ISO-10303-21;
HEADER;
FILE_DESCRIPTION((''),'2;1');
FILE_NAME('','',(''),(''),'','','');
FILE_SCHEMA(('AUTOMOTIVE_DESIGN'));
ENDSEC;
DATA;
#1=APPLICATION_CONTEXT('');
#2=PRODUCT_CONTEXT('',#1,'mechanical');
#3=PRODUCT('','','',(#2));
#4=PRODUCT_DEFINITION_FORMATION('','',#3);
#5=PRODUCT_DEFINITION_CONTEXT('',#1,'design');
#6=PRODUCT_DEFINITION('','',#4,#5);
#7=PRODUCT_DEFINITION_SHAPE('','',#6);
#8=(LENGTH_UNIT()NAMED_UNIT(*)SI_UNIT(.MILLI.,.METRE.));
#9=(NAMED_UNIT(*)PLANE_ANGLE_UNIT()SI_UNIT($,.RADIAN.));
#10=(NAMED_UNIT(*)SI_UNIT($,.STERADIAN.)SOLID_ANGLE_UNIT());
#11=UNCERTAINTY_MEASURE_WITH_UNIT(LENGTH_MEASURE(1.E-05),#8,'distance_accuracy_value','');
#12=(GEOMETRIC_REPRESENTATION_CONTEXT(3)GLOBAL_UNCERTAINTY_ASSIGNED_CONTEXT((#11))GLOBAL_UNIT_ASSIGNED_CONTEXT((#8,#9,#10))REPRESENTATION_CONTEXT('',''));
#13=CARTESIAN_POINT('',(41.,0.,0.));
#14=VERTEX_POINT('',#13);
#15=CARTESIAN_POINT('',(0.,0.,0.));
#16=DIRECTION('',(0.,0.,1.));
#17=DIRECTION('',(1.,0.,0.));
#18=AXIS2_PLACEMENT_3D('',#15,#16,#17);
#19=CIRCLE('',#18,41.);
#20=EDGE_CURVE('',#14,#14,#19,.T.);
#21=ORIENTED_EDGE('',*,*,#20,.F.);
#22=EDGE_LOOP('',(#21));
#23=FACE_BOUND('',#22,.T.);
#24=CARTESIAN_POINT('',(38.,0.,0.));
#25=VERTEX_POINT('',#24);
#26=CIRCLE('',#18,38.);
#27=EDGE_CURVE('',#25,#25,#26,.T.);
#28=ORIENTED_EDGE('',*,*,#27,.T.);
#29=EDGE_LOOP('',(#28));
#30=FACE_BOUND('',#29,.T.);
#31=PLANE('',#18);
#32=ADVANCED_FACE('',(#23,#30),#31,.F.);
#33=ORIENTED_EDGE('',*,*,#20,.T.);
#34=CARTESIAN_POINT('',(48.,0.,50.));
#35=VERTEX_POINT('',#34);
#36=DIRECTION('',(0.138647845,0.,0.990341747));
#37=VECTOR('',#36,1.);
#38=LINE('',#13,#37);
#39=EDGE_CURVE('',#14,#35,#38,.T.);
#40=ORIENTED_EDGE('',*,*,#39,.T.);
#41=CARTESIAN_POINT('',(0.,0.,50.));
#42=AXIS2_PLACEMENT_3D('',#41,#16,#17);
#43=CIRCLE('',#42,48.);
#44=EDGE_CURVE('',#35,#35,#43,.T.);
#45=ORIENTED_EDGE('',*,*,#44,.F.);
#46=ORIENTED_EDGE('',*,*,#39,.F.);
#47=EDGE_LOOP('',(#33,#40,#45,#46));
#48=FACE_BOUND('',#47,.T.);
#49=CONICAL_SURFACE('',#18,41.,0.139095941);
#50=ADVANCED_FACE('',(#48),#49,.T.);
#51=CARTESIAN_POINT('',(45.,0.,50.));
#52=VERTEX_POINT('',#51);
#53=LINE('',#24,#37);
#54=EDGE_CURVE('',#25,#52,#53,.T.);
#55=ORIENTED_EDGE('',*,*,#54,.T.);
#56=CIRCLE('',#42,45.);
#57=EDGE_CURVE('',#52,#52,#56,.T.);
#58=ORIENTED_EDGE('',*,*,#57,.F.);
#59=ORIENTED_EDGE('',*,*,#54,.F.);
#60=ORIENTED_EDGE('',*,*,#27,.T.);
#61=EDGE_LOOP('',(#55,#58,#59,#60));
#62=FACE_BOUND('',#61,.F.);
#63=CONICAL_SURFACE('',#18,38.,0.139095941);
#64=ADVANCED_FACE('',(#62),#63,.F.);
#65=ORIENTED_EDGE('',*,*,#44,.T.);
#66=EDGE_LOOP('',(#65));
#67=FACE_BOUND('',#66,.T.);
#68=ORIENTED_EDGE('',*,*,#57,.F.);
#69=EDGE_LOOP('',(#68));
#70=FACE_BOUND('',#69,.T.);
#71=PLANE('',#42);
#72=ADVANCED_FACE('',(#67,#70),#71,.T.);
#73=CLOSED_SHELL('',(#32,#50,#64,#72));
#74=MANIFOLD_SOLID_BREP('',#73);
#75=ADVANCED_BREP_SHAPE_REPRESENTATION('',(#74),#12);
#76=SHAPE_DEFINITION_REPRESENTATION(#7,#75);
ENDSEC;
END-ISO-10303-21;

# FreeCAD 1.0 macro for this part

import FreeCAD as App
import Part
import Sketcher

V = App.Vector

doc = App.newDocument("Part")
body = doc.addObject("PartDesign::Body", "Body")

# Sketch on XZ plane
sketch1 = body.newObject("Sketcher::SketchObject", "Sketch")
sketch1.AttachmentSupport = (doc.getObject("XZ_Plane"), [""])
sketch1.MapMode = "FlatFace"
sketch1.addGeometry([
    Part.LineSegment(V(0, 0, 0), V(38, 0, 0)),
    Part.LineSegment(V(38, 0, 0), V(45, 50, 0)),
    Part.LineSegment(V(45, 50, 0), V(0, 50, 0)),
    Part.LineSegment(V(0, 50, 0), V(0, 0, 0)),
], False)
sketch1.addConstraint([
    Sketcher.Constraint("Coincident", 0, 2, 1, 1),
    Sketcher.Constraint("Coincident", 1, 2, 2, 1),
    Sketcher.Constraint("Coincident", 2, 2, 3, 1),
    Sketcher.Constraint("Coincident", 3, 2, 0, 1),
    Sketcher.Constraint("Horizontal", 0),
    Sketcher.Constraint("Horizontal", 2),
    Sketcher.Constraint("Vertical", 3),
    Sketcher.Constraint("Coincident", 3, 2, -1, 1),
    Sketcher.Constraint("DistanceX", 0, 1, 0, 2, 38.0),
    Sketcher.Constraint("DistanceX", 2, 2, 2, 1, 45.0),
    Sketcher.Constraint("DistanceY", 3, 2, 3, 1, 50.0),
])
revolution = body.newObject("PartDesign::Revolution", "Revolution")
revolution.Profile = sketch1
revolution.ReferenceAxis = (sketch1, ["V_Axis"])
revolution.Angle = 360
body2 = doc.addObject("PartDesign::Body", "Body001")

# Sketch on XZ plane
sketch2 = body2.newObject("Sketcher::SketchObject", "Sketch001")
sketch2.AttachmentSupport = (doc.getObject("XZ_Plane001"), [""])
sketch2.MapMode = "FlatFace"
sketch2.addGeometry([
    Part.LineSegment(V(0, 0, 0), V(41, 0, 0)),
    Part.LineSegment(V(41, 0, 0), V(48, 50, 0)),
    Part.LineSegment(V(48, 50, 0), V(0, 50, 0)),
    Part.LineSegment(V(0, 50, 0), V(0, 0, 0)),
], False)
sketch2.addConstraint([
    Sketcher.Constraint("Coincident", 0, 2, 1, 1),
    Sketcher.Constraint("Coincident", 1, 2, 2, 1),
    Sketcher.Constraint("Coincident", 2, 2, 3, 1),
    Sketcher.Constraint("Coincident", 3, 2, 0, 1),
    Sketcher.Constraint("Horizontal", 0),
    Sketcher.Constraint("Horizontal", 2),
    Sketcher.Constraint("Vertical", 3),
    Sketcher.Constraint("Coincident", 3, 2, -1, 1),
    Sketcher.Constraint("DistanceX", 0, 1, 0, 2, 41.0),
    Sketcher.Constraint("DistanceX", 2, 2, 2, 1, 48.0),
    Sketcher.Constraint("DistanceY", 3, 2, 3, 1, 50.0),
])
revolution2 = body2.newObject("PartDesign::Revolution", "Revolution001")
revolution2.Profile = sketch2
revolution2.ReferenceAxis = (sketch2, ["V_Axis"])
revolution2.Angle = 360
doc.recompute()

boolean = body2.newObject("PartDesign::Boolean", "Boolean")
boolean.Type = "Cut"
boolean.addObjects([body])

doc.recompute()
